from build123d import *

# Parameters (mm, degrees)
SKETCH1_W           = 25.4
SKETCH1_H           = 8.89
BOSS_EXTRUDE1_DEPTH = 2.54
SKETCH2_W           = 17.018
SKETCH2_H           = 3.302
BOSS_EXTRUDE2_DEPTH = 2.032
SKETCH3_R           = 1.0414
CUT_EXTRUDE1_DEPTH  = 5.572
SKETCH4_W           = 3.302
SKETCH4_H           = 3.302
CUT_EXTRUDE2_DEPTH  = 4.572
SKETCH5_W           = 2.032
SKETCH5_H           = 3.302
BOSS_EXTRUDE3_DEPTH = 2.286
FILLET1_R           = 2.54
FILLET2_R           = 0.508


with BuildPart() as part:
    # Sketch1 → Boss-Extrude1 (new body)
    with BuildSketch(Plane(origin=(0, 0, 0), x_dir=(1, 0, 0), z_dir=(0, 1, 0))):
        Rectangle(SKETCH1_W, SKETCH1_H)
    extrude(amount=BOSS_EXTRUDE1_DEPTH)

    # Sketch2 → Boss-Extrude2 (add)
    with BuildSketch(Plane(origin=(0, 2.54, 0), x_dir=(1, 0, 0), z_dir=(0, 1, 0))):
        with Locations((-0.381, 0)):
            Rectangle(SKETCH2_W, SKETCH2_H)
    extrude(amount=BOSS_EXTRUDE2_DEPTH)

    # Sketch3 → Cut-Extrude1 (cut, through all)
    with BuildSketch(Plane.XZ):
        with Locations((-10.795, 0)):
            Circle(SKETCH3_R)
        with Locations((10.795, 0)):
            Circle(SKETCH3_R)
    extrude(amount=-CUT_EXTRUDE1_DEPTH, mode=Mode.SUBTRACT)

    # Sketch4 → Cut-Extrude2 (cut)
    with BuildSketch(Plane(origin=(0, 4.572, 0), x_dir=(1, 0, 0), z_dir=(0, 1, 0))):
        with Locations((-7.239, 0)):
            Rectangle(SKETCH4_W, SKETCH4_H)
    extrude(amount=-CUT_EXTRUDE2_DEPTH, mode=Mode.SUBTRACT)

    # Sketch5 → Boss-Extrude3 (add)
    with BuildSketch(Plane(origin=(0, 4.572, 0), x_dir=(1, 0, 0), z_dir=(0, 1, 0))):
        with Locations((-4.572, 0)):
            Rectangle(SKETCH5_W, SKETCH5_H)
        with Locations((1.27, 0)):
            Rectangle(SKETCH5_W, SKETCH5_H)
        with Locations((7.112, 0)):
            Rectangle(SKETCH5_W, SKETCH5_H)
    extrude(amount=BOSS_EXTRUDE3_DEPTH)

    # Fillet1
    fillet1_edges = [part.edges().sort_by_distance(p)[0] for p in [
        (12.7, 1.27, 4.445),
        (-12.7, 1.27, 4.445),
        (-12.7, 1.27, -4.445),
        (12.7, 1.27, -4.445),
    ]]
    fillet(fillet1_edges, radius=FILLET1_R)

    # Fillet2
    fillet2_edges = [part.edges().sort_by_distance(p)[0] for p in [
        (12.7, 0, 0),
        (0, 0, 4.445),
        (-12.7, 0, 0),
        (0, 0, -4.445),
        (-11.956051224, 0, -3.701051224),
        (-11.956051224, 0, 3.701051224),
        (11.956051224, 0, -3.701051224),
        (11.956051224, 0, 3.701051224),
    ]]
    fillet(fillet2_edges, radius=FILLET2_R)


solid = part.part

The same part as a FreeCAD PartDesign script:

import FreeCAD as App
import Part
import Sketcher
Q = App.Units.Quantity


def edges_at(feature, points):
    """Names of the edges that pass closest to the given points."""
    edges = feature.Shape.Edges
    near = lambda p: min(range(len(edges)), key=lambda i: edges[i].distToShape(Part.Vertex(*p))[0])
    return sorted({f"Edge{near(p) + 1}" for p in points})


def add_polygon(sketch, points):
    """Adds a closed chain of lines whose ends are joined by coincident constraints."""
    first, n = sketch.GeometryCount, len(points)
    for a, b in zip(points, points[1:] + points[:1]):
        sketch.addGeometry(Part.LineSegment(App.Vector(*a, 0), App.Vector(*b, 0)), False)
    for i in range(n):
        sketch.addConstraint(Sketcher.Constraint("Coincident", first + i, 2, first + (i + 1) % n, 1))

doc = App.newDocument("Part")
body = doc.addObject("PartDesign::Body", "Body")

# Sketch on XZ plane
sketch1 = body.newObject("Sketcher::SketchObject", "Sketch")
sketch1.AttachmentSupport = (doc.getObject("XZ_Plane"), [""])
sketch1.MapMode = "FlatFace"
add_polygon(sketch1, [(-13, -4), (-13, 4), (13, 4), (13, -4)])  # lines 0-3
sketch1.addConstraint(Sketcher.Constraint("Vertical", 0))
sketch1.addConstraint(Sketcher.Constraint("Horizontal", 1))
sketch1.addConstraint(Sketcher.Constraint("Vertical", 2))
sketch1.addConstraint(Sketcher.Constraint("Horizontal", 3))
sketch1.addConstraint(Sketcher.Constraint("Symmetric", 0, 2, 2, 2, -1, 1))
sketch1.addConstraint(Sketcher.Constraint("DistanceX", 1, 1, 1, 2, Q("1 in")))
sketch1.addConstraint(Sketcher.Constraint("DistanceY", 0, 1, 0, 2, Q("0.35 in")))
pad1 = body.newObject("PartDesign::Pad", "Pad")
pad1.Profile = sketch1
pad1.Length = Q("0.1 in")
pad1.Reversed = True

# Sketch on XZ plane
sketch2 = body.newObject("Sketcher::SketchObject", "Sketch001")
sketch2.AttachmentSupport = (doc.getObject("XZ_Plane"), [""])
sketch2.MapMode = "FlatFace"
sketch2.AttachmentOffset = App.Placement(App.Vector(0, 0, -0.1 * 25.4), App.Rotation())
add_polygon(sketch2, [(-8.9, -1.7), (-8.9, 1.7), (8.1, 1.7), (8.1, -1.7)])  # lines 0-3
sketch2.addConstraint(Sketcher.Constraint("Vertical", 0))
sketch2.addConstraint(Sketcher.Constraint("Horizontal", 1))
sketch2.addConstraint(Sketcher.Constraint("Vertical", 2))
sketch2.addConstraint(Sketcher.Constraint("Horizontal", 3))
sketch2.addConstraint(Sketcher.Constraint("DistanceX", 1, 1, 1, 2, Q("0.67 in")))
sketch2.addConstraint(Sketcher.Constraint("DistanceY", 0, 1, 0, 2, Q("0.13 in")))
sketch2.addConstraint(Sketcher.Constraint("DistanceX", 0, 2, -1, 1, Q("0.35 in")))
sketch2.addConstraint(Sketcher.Constraint("DistanceY", -1, 1, 0, 2, Q("0.065 in")))
pad2 = body.newObject("PartDesign::Pad", "Pad001")
pad2.Profile = sketch2
pad2.Length = Q("0.08 in")
pad2.Reversed = True

# Sketch on XZ plane
sketch3 = body.newObject("Sketcher::SketchObject", "Sketch002")
sketch3.AttachmentSupport = (doc.getObject("XZ_Plane"), [""])
sketch3.MapMode = "FlatFace"
sketch3.addGeometry(Part.Circle(App.Vector(-10.8, 0, 0), App.Vector(0, 0, 1), 1), False)
sketch3.addGeometry(Part.Circle(App.Vector(10.8, 0, 0), App.Vector(0, 0, 1), 1), False)
sketch3.addConstraint(Sketcher.Constraint("Equal", 0, 1))
sketch3.addConstraint(Sketcher.Constraint("Symmetric", 0, 3, 1, 3, -1, 1))
sketch3.addConstraint(Sketcher.Constraint("PointOnObject", 0, 3, -1))
sketch3.addConstraint(Sketcher.Constraint("Diameter", 0, Q("0.082 in")))
sketch3.addConstraint(Sketcher.Constraint("DistanceX", 0, 3, 1, 3, Q("0.85 in")))
pocket1 = body.newObject("PartDesign::Pocket", "Pocket")
pocket1.Profile = sketch3
pocket1.Type = "ThroughAll"

# Sketch on XZ plane
sketch4 = body.newObject("Sketcher::SketchObject", "Sketch003")
sketch4.AttachmentSupport = (doc.getObject("XZ_Plane"), [""])
sketch4.MapMode = "FlatFace"
sketch4.AttachmentOffset = App.Placement(App.Vector(0, 0, -0.18 * 25.4), App.Rotation())
add_polygon(sketch4, [(-8.9, -1.7), (-8.9, 1.7), (-5.6, 1.7), (-5.6, -1.7)])  # lines 0-3
sketch4.addConstraint(Sketcher.Constraint("Vertical", 0))
sketch4.addConstraint(Sketcher.Constraint("Horizontal", 1))
sketch4.addConstraint(Sketcher.Constraint("Vertical", 2))
sketch4.addConstraint(Sketcher.Constraint("Horizontal", 3))
sketch4.addConstraint(Sketcher.Constraint("Equal", 3, 0))
sketch4.addConstraint(Sketcher.Constraint("DistanceX", 1, 1, 1, 2, Q("0.13 in")))
sketch4.addConstraint(Sketcher.Constraint("DistanceX", 0, 2, -1, 1, Q("0.35 in")))
sketch4.addConstraint(Sketcher.Constraint("DistanceY", -1, 1, 0, 2, Q("0.065 in")))
pocket2 = body.newObject("PartDesign::Pocket", "Pocket001")
pocket2.Profile = sketch4
pocket2.Length = Q("0.18 in")
pocket2.Reversed = True

# Sketch on XZ plane
sketch5 = body.newObject("Sketcher::SketchObject", "Sketch004")
sketch5.AttachmentSupport = (doc.getObject("XZ_Plane"), [""])
sketch5.MapMode = "FlatFace"
sketch5.AttachmentOffset = App.Placement(App.Vector(0, 0, -0.18 * 25.4), App.Rotation())
add_polygon(sketch5, [(-5.6, -1.7), (-5.6, 1.7), (-3.6, 1.7), (-3.6, -1.7)])  # lines 0-3
add_polygon(sketch5, [(0.3, -1.7), (0.3, 1.7), (2.3, 1.7), (2.3, -1.7)])  # lines 4-7
add_polygon(sketch5, [(6.1, -1.7), (6.1, 1.7), (8.1, 1.7), (8.1, -1.7)])  # lines 8-11
sketch5.addConstraint(Sketcher.Constraint("Vertical", 0))
sketch5.addConstraint(Sketcher.Constraint("Horizontal", 1))
sketch5.addConstraint(Sketcher.Constraint("Vertical", 2))
sketch5.addConstraint(Sketcher.Constraint("Horizontal", 3))
sketch5.addConstraint(Sketcher.Constraint("Vertical", 4))
sketch5.addConstraint(Sketcher.Constraint("Horizontal", 5))
sketch5.addConstraint(Sketcher.Constraint("Vertical", 6))
sketch5.addConstraint(Sketcher.Constraint("Horizontal", 7))
sketch5.addConstraint(Sketcher.Constraint("Vertical", 8))
sketch5.addConstraint(Sketcher.Constraint("Horizontal", 9))
sketch5.addConstraint(Sketcher.Constraint("Vertical", 10))
sketch5.addConstraint(Sketcher.Constraint("Horizontal", 11))
sketch5.addConstraint(Sketcher.Constraint("Horizontal", 1, 2, 4, 2))
sketch5.addConstraint(Sketcher.Constraint("Horizontal", 3, 2, 6, 2))
sketch5.addConstraint(Sketcher.Constraint("Horizontal", 5, 2, 8, 2))
sketch5.addConstraint(Sketcher.Constraint("Horizontal", 7, 2, 10, 2))
sketch5.addConstraint(Sketcher.Constraint("Equal", 3, 5))
sketch5.addConstraint(Sketcher.Constraint("Equal", 7, 9))
sketch5.addConstraint(Sketcher.Constraint("DistanceX", 1, 1, 1, 2, Q("0.08 in")))
sketch5.addConstraint(Sketcher.Constraint("DistanceY", 0, 1, 0, 2, Q("0.13 in")))
sketch5.addConstraint(Sketcher.Constraint("DistanceX", 0, 2, -1, 1, Q("0.22 in")))
sketch5.addConstraint(Sketcher.Constraint("DistanceX", -1, 1, 4, 2, Q("0.01 in")))
sketch5.addConstraint(Sketcher.Constraint("DistanceX", -1, 1, 8, 2, Q("0.24 in")))
sketch5.addConstraint(Sketcher.Constraint("DistanceY", -1, 1, 0, 2, Q("0.065 in")))
pad3 = body.newObject("PartDesign::Pad", "Pad002")
pad3.Profile = sketch5
pad3.Length = Q("0.09 in")
pad3.Reversed = True
doc.recompute()

fillet = body.newObject("PartDesign::Fillet", "Fillet")
fillet.Base = (pad3, edges_at(pad3, [
    (12.7, 1.27, 4.445),
    (-12.7, 1.27, 4.445),
    (-12.7, 1.27, -4.445),
    (12.7, 1.27, -4.445),
]))
fillet.Radius = Q("0.1 in")
doc.recompute()

fillet2 = body.newObject("PartDesign::Fillet", "Fillet001")
fillet2.Base = (fillet, edges_at(fillet, [
    (12.7, 0, 0),
    (0, 0, 4.445),
    (-12.7, 0, 0),
    (0, 0, -4.445),
    (-11.956, 0, -3.701),
    (-11.956, 0, 3.701),
    (11.956, 0, -3.701),
    (11.956, 0, 3.701),
]))
fillet2.Radius = Q("0.02 in")

doc.recompute()
